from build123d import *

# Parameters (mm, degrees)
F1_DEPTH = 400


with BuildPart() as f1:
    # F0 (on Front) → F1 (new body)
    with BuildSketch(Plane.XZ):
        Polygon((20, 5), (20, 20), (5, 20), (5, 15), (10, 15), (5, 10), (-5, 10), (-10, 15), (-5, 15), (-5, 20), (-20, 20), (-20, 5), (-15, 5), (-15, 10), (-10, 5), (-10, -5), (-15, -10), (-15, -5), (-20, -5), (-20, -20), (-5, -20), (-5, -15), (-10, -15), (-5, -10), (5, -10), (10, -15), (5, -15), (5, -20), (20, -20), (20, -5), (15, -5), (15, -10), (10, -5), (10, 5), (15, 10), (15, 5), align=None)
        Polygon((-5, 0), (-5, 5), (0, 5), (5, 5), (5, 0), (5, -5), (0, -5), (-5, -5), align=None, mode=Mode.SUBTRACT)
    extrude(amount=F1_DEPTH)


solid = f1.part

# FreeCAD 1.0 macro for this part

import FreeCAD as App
import Part
import Sketcher
from FreeCAD import Vector
Q = App.Units.Quantity


def add_polygon(sketch, points):
    """Adds a closed chain of lines whose ends are joined by coincident constraints."""
    first, n = sketch.GeometryCount, len(points)
    for a, b in zip(points, points[1:] + points[:1]):
        sketch.addGeometry(Part.LineSegment(App.Vector(*a, 0), App.Vector(*b, 0)), False)
    for i in range(n):
        sketch.addConstraint(Sketcher.Constraint("Coincident", first + i, 2, first + (i + 1) % n, 1))

doc = App.newDocument("Part")
body = doc.addObject("PartDesign::Body", "Body")

# Sketch on XZ plane
sketch1 = body.newObject("Sketcher::SketchObject", "Sketch")
sketch1.AttachmentSupport = (doc.getObject("XZ_Plane"), [""])
sketch1.MapMode = "FlatFace"
add_polygon(sketch1, [(20, 5), (20, 20), (5, 20), (5, 15), (10, 15), (5, 10), (-5, 10), (-10, 15), (-5, 15), (-5, 20), (-20, 20), (-20, 5), (-15, 5), (-15, 10), (-10, 5), (-10, -5), (-15, -10), (-15, -5), (-20, -5), (-20, -20), (-5, -20), (-5, -15), (-10, -15), (-5, -10), (5, -10), (10, -15), (5, -15), (5, -20), (20, -20), (20, -5), (15, -5), (15, -10), (10, -5), (10, 5), (15, 10), (15, 5)])  # lines 0-35
add_polygon(sketch1, [(-5, -5), (-5, 5), (5, 5), (5, -5)])  # lines 36-39
sketch1.addConstraint(Sketcher.Constraint("Vertical", 0))
sketch1.addConstraint(Sketcher.Constraint("Horizontal", 1))
sketch1.addConstraint(Sketcher.Constraint("Vertical", 2))
sketch1.addConstraint(Sketcher.Constraint("Horizontal", 3))
sketch1.addConstraint(Sketcher.Constraint("Horizontal", 5))
sketch1.addConstraint(Sketcher.Constraint("Horizontal", 7))
sketch1.addConstraint(Sketcher.Constraint("Vertical", 8))
sketch1.addConstraint(Sketcher.Constraint("Horizontal", 9))
sketch1.addConstraint(Sketcher.Constraint("Vertical", 10))
sketch1.addConstraint(Sketcher.Constraint("Horizontal", 11))
sketch1.addConstraint(Sketcher.Constraint("Vertical", 12))
sketch1.addConstraint(Sketcher.Constraint("Vertical", 14))
sketch1.addConstraint(Sketcher.Constraint("Vertical", 16))
sketch1.addConstraint(Sketcher.Constraint("Horizontal", 17))
sketch1.addConstraint(Sketcher.Constraint("Vertical", 18))
sketch1.addConstraint(Sketcher.Constraint("Horizontal", 19))
sketch1.addConstraint(Sketcher.Constraint("Vertical", 20))
sketch1.addConstraint(Sketcher.Constraint("Horizontal", 21))
sketch1.addConstraint(Sketcher.Constraint("Horizontal", 23))
sketch1.addConstraint(Sketcher.Constraint("Horizontal", 25))
sketch1.addConstraint(Sketcher.Constraint("Vertical", 26))
sketch1.addConstraint(Sketcher.Constraint("Horizontal", 27))
sketch1.addConstraint(Sketcher.Constraint("Vertical", 28))
sketch1.addConstraint(Sketcher.Constraint("Horizontal", 29))
sketch1.addConstraint(Sketcher.Constraint("Vertical", 30))
sketch1.addConstraint(Sketcher.Constraint("Vertical", 32))
sketch1.addConstraint(Sketcher.Constraint("Vertical", 34))
sketch1.addConstraint(Sketcher.Constraint("Horizontal", 35))
sketch1.addConstraint(Sketcher.Constraint("Vertical", 36))
sketch1.addConstraint(Sketcher.Constraint("Horizontal", 37))
sketch1.addConstraint(Sketcher.Constraint("Vertical", 38))
sketch1.addConstraint(Sketcher.Constraint("Horizontal", 39))
sketch1.addConstraint(Sketcher.Constraint("Symmetric", 0, 2, 18, 2, -1, 1))
sketch1.addConstraint(Sketcher.Constraint("Symmetric", 2, 2, 20, 2, -1, 1))
sketch1.addConstraint(Sketcher.Constraint("Symmetric", 4, 2, 22, 2, -1, 1))
sketch1.addConstraint(Sketcher.Constraint("Symmetric", 6, 2, 24, 2, -1, 1))
sketch1.addConstraint(Sketcher.Constraint("Symmetric", 8, 2, 26, 2, -1, 1))
sketch1.addConstraint(Sketcher.Constraint("Symmetric", 10, 2, 28, 2, -1, 1))
sketch1.addConstraint(Sketcher.Constraint("Symmetric", 12, 2, 30, 2, -1, 1))
sketch1.addConstraint(Sketcher.Constraint("Symmetric", 13, 2, 31, 2, -1, 1))
sketch1.addConstraint(Sketcher.Constraint("Symmetric", 15, 2, 33, 2, -1, 1))
sketch1.addConstraint(Sketcher.Constraint("Symmetric", 36, 2, 38, 2, -1, 1))
sketch1.addConstraint(Sketcher.Constraint("Symmetric", 3, 2, 6, 2, -2))
sketch1.addConstraint(Sketcher.Constraint("Symmetric", 1, 2, 8, 2, -2))
sketch1.addConstraint(Sketcher.Constraint("Symmetric", 17, 2, 28, 2, -2))
sketch1.addConstraint(Sketcher.Constraint("Symmetric", 15, 2, 30, 2, -2))
sketch1.addConstraint(Sketcher.Constraint("Perpendicular", 4, 6))
sketch1.addConstraint(Sketcher.Constraint("Parallel", 6, 13))
sketch1.addConstraint(Sketcher.Constraint("Perpendicular", 13, 15))
sketch1.addConstraint(Sketcher.Constraint("Parallel", 15, 22))
sketch1.addConstraint(Sketcher.Constraint("Perpendicular", 22, 24))
sketch1.addConstraint(Sketcher.Constraint("Perpendicular", 31, 33))
sketch1.addConstraint(Sketcher.Constraint("Horizontal", 5, 2, 12, 2))
sketch1.addConstraint(Sketcher.Constraint("Horizontal", 11, 2, 13, 2))
sketch1.addConstraint(Sketcher.Constraint("Horizontal", 14, 2, 16, 2))
sketch1.addConstraint(Sketcher.Constraint("Horizontal", 32, 2, 34, 2))
sketch1.addConstraint(Sketcher.Constraint("Horizontal", 35, 2, 36, 2))
sketch1.addConstraint(Sketcher.Constraint("Vertical", 2, 2, 4, 2))
sketch1.addConstraint(Sketcher.Constraint("Vertical", 6, 2, 13, 2))
sketch1.addConstraint(Sketcher.Constraint("Vertical", 22, 2, 36, 2))
sketch1.addConstraint(Sketcher.Constraint("Equal", 7, 11))
sketch1.addConstraint(Sketcher.Constraint("Equal", 27, 0))
sketch1.addConstraint(Sketcher.Constraint("Equal", 8, 12))
sketch1.addConstraint(Sketcher.Constraint("Equal", 39, 14))
sketch1.addConstraint(Sketcher.Constraint("DistanceX", 1, 2, 1, 1, Q("15 mm")))
sketch1.addConstraint(Sketcher.Constraint("DistanceX", 5, 2, 5, 1, Q("10 mm")))
pad1 = body.newObject("PartDesign::Pad", "Pad")
pad1.Profile = sketch1
pad1.Length = 400

doc.recompute()
